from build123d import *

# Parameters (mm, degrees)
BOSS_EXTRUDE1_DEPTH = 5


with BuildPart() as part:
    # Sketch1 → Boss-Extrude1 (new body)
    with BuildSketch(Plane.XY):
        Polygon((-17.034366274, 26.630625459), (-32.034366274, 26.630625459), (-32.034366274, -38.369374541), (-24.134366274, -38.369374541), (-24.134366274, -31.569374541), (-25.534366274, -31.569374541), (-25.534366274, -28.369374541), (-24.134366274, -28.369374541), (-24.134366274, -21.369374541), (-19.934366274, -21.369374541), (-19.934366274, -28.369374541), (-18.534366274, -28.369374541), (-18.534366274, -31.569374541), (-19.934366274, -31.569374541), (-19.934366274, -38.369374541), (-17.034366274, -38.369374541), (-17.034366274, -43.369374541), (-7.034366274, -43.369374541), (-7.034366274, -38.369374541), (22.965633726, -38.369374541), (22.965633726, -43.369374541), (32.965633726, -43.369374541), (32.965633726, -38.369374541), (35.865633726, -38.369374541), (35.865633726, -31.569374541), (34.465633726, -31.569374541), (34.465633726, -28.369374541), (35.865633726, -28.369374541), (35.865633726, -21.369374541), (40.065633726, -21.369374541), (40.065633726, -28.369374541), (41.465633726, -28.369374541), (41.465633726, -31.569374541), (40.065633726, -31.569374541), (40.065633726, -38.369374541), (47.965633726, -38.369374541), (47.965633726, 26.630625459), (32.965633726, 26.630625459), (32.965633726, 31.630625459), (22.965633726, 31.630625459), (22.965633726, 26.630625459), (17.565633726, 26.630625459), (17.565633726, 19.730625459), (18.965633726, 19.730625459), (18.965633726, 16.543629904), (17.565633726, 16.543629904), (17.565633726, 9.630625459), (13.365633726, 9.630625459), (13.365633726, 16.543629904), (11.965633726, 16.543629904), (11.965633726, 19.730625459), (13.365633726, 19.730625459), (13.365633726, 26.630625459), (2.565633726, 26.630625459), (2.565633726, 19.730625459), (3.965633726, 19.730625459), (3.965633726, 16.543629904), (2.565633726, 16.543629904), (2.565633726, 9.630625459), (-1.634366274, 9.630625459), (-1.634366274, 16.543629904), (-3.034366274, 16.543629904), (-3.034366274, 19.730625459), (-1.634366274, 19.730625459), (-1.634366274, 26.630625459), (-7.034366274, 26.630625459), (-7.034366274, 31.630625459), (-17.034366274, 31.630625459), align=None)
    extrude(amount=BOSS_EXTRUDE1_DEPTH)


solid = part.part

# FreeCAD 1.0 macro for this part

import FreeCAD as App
import Part
import Sketcher

V = App.Vector


def add_polygon(sketch, points):
    """Adds a closed chain of lines whose ends are joined by coincident constraints."""
    first, n = sketch.GeometryCount, len(points)
    for a, b in zip(points, points[1:] + points[:1]):
        sketch.addGeometry(Part.LineSegment(App.Vector(*a, 0), App.Vector(*b, 0)), False)
    for i in range(n):
        sketch.addConstraint(Sketcher.Constraint("Coincident", first + i, 2, first + (i + 1) % n, 1))

doc = App.newDocument("Part")
body = doc.addObject("PartDesign::Body", "Body")

sketch1 = body.newObject("Sketcher::SketchObject", "Sketch")
sketch1.AttachmentSupport = (doc.getObject("XY_Plane"), [""])
sketch1.MapMode = "FlatFace"
add_polygon(sketch1, [(-17, 26.6), (-32, 26.6), (-32, -38.4), (-24.1, -38.4), (-24.1, -31.6), (-25.5, -31.6), (-25.5, -28.4), (-24.1, -28.4), (-24.1, -21.4), (-19.9, -21.4), (-19.9, -28.4), (-18.5, -28.4), (-18.5, -31.6), (-19.9, -31.6), (-19.9, -38.4), (-17, -38.4), (-17, -43.4), (-7, -43.4), (-7, -38.4), (23, -38.4), (23, -43.4), (33, -43.4), (33, -38.4), (35.9, -38.4), (35.9, -31.6), (34.5, -31.6), (34.5, -28.4), (35.9, -28.4), (35.9, -21.4), (40.1, -21.4), (40.1, -28.4), (41.5, -28.4), (41.5, -31.6), (40.1, -31.6), (40.1, -38.4), (48, -38.4), (48, 26.6), (33, 26.6), (33, 31.6), (23, 31.6), (23, 26.6), (17.6, 26.6), (17.6, 19.7), (19, 19.7), (19, 16.5), (17.6, 16.5), (17.6, 9.6), (13.4, 9.6), (13.4, 16.5), (12, 16.5), (12, 19.7), (13.4, 19.7), (13.4, 26.6), (2.6, 26.6), (2.6, 19.7), (4, 19.7), (4, 16.5), (2.6, 16.5), (2.6, 9.6), (-1.6, 9.6), (-1.6, 16.5), (-3, 16.5), (-3, 19.7), (-1.6, 19.7), (-1.6, 26.6), (-7, 26.6), (-7, 31.6), (-17, 31.6)])
sketch1.addConstraint([
    Sketcher.Constraint("Horizontal", 0),
    Sketcher.Constraint("Vertical", 1),
    Sketcher.Constraint("Horizontal", 2),
    Sketcher.Constraint("Vertical", 3),
    Sketcher.Constraint("Horizontal", 4),
    Sketcher.Constraint("Vertical", 5),
    Sketcher.Constraint("Horizontal", 6),
    Sketcher.Constraint("Vertical", 7),
    Sketcher.Constraint("Horizontal", 8),
    Sketcher.Constraint("Vertical", 9),
    Sketcher.Constraint("Horizontal", 10),
    Sketcher.Constraint("Vertical", 11),
    Sketcher.Constraint("Horizontal", 12),
    Sketcher.Constraint("Vertical", 13),
    Sketcher.Constraint("Horizontal", 14),
    Sketcher.Constraint("Vertical", 15),
    Sketcher.Constraint("Horizontal", 16),
    Sketcher.Constraint("Vertical", 17),
    Sketcher.Constraint("Horizontal", 18),
    Sketcher.Constraint("Vertical", 19),
    Sketcher.Constraint("Horizontal", 20),
    Sketcher.Constraint("Vertical", 21),
    Sketcher.Constraint("Horizontal", 22),
    Sketcher.Constraint("Vertical", 23),
    Sketcher.Constraint("Horizontal", 24),
    Sketcher.Constraint("Vertical", 25),
    Sketcher.Constraint("Horizontal", 26),
    Sketcher.Constraint("Vertical", 27),
    Sketcher.Constraint("Horizontal", 28),
    Sketcher.Constraint("Vertical", 29),
    Sketcher.Constraint("Horizontal", 30),
    Sketcher.Constraint("Vertical", 31),
    Sketcher.Constraint("Horizontal", 32),
    Sketcher.Constraint("Vertical", 33),
    Sketcher.Constraint("Horizontal", 34),
    Sketcher.Constraint("Vertical", 35),
    Sketcher.Constraint("Horizontal", 36),
    Sketcher.Constraint("Vertical", 37),
    Sketcher.Constraint("Horizontal", 38),
    Sketcher.Constraint("Vertical", 39),
    Sketcher.Constraint("Horizontal", 40),
    Sketcher.Constraint("Vertical", 41),
    Sketcher.Constraint("Horizontal", 42),
    Sketcher.Constraint("Vertical", 43),
    Sketcher.Constraint("Horizontal", 44),
    Sketcher.Constraint("Vertical", 45),
    Sketcher.Constraint("Horizontal", 46),
    Sketcher.Constraint("Vertical", 47),
    Sketcher.Constraint("Horizontal", 48),
    Sketcher.Constraint("Vertical", 49),
    Sketcher.Constraint("Horizontal", 50),
    Sketcher.Constraint("Vertical", 51),
    Sketcher.Constraint("Horizontal", 52),
    Sketcher.Constraint("Vertical", 53),
    Sketcher.Constraint("Horizontal", 54),
    Sketcher.Constraint("Vertical", 55),
    Sketcher.Constraint("Horizontal", 56),
    Sketcher.Constraint("Vertical", 57),
    Sketcher.Constraint("Horizontal", 58),
    Sketcher.Constraint("Vertical", 59),
    Sketcher.Constraint("Horizontal", 60),
    Sketcher.Constraint("Vertical", 61),
    Sketcher.Constraint("Horizontal", 62),
    Sketcher.Constraint("Vertical", 63),
    Sketcher.Constraint("Horizontal", 64),
    Sketcher.Constraint("Vertical", 65),
    Sketcher.Constraint("Horizontal", 66),
    Sketcher.Constraint("Vertical", 67),
    Sketcher.Constraint("Horizontal", 6, 2, 9, 2),
    Sketcher.Constraint("Horizontal", 4, 2, 11, 2),
    Sketcher.Constraint("Horizontal", 2, 2, 13, 2),
    Sketcher.Constraint("Horizontal", 14, 2, 17, 2),
    Sketcher.Constraint("Horizontal", 16, 2, 19, 2),
    Sketcher.Constraint("Horizontal", 18, 2, 21, 2),
    Sketcher.Constraint("Horizontal", 12, 2, 23, 2),
    Sketcher.Constraint("Horizontal", 10, 2, 25, 2),
    Sketcher.Constraint("Horizontal", 8, 2, 27, 2),
    Sketcher.Constraint("Horizontal", 26, 2, 29, 2),
    Sketcher.Constraint("Horizontal", 24, 2, 31, 2),
    Sketcher.Constraint("Horizontal", 22, 2, 33, 2),
    Sketcher.Constraint("Horizontal", 0, 2, 35, 2),
    Sketcher.Constraint("Horizontal", 36, 2, 39, 2),
    Sketcher.Constraint("Horizontal", 44, 2, 47, 2),
    Sketcher.Constraint("Horizontal", 42, 2, 49, 2),
    Sketcher.Constraint("Horizontal", 40, 2, 51, 2),
    Sketcher.Constraint("Horizontal", 50, 2, 53, 2),
    Sketcher.Constraint("Horizontal", 48, 2, 55, 2),
    Sketcher.Constraint("Horizontal", 46, 2, 57, 2),
    Sketcher.Constraint("Horizontal", 56, 2, 59, 2),
    Sketcher.Constraint("Horizontal", 54, 2, 61, 2),
    Sketcher.Constraint("Horizontal", 52, 2, 63, 2),
    Sketcher.Constraint("Horizontal", 38, 2, 65, 2),
    Sketcher.Constraint("Vertical", 3, 2, 6, 2),
    Sketcher.Constraint("Vertical", 9, 2, 12, 2),
    Sketcher.Constraint("Vertical", 23, 2, 26, 2),
    Sketcher.Constraint("Vertical", 29, 2, 32, 2),
    Sketcher.Constraint("Vertical", 21, 2, 36, 2),
    Sketcher.Constraint("Vertical", 19, 2, 38, 2),
    Sketcher.Constraint("Vertical", 41, 2, 44, 2),
    Sketcher.Constraint("Vertical", 47, 2, 50, 2),
    Sketcher.Constraint("Vertical", 53, 2, 56, 2),
    Sketcher.Constraint("Vertical", 59, 2, 62, 2),
    Sketcher.Constraint("Vertical", 17, 2, 64, 2),
    Sketcher.Constraint("Vertical", 15, 2, 66, 2),
    Sketcher.Constraint("Equal", 6, 10),
    Sketcher.Constraint("Equal", 16, 20),
    Sketcher.Constraint("Equal", 14, 22),
    Sketcher.Constraint("Equal", 12, 24),
    Sketcher.Constraint("Equal", 8, 28),
    Sketcher.Constraint("Equal", 26, 30),
    Sketcher.Constraint("Equal", 2, 34),
    Sketcher.Constraint("Equal", 32, 42),
    Sketcher.Constraint("Equal", 28, 46),
    Sketcher.Constraint("Equal", 44, 48),
    Sketcher.Constraint("Equal", 50, 54),
    Sketcher.Constraint("Equal", 46, 58),
    Sketcher.Constraint("Equal", 56, 60),
    Sketcher.Constraint("Equal", 40, 64),
    Sketcher.Constraint("Equal", 21, 37),
    Sketcher.Constraint("DistanceX", 0, 2, 0, 1, 15.0),
    Sketcher.Constraint("DistanceX", 16, 1, 16, 2, 10.0),
    Sketcher.Constraint("DistanceX", 18, 1, 18, 2, 30.0),
    Sketcher.Constraint("DistanceY", 1, 2, 1, 1, 65.0),
    Sketcher.Constraint("DistanceY", 7, 1, 7, 2, 7.0),
    Sketcher.Constraint("DistanceY", 15, 2, 15, 1, 5.0),
    Sketcher.Constraint("DistanceX", 2, 1, 2, 2, 7.9),
    Sketcher.Constraint("DistanceX", 4, 2, 4, 1, 1.4),
    Sketcher.Constraint("DistanceX", 8, 1, 8, 2, 4.2),
    Sketcher.Constraint("DistanceX", 40, 2, 40, 1, 5.4),
    Sketcher.Constraint("DistanceY", 3, 1, 3, 2, 6.8),
    Sketcher.Constraint("DistanceY", 5, 1, 5, 2, 3.2),
    Sketcher.Constraint("DistanceY", 41, 2, 41, 1, 6.9),
    Sketcher.Constraint("DistanceY", 43, 2, 43, 1, 3.186996),
    Sketcher.Constraint("DistanceY", 45, 2, 45, 1, 6.913004),
    Sketcher.Constraint("DistanceY", -1, 1, 43, 2, 16.54363),
    Sketcher.Constraint("DistanceX", 0, 2, -1, 1, 32.034366),
])
pad1 = body.newObject("PartDesign::Pad", "Pad")
pad1.Profile = sketch1
pad1.Length = 5

doc.recompute()
